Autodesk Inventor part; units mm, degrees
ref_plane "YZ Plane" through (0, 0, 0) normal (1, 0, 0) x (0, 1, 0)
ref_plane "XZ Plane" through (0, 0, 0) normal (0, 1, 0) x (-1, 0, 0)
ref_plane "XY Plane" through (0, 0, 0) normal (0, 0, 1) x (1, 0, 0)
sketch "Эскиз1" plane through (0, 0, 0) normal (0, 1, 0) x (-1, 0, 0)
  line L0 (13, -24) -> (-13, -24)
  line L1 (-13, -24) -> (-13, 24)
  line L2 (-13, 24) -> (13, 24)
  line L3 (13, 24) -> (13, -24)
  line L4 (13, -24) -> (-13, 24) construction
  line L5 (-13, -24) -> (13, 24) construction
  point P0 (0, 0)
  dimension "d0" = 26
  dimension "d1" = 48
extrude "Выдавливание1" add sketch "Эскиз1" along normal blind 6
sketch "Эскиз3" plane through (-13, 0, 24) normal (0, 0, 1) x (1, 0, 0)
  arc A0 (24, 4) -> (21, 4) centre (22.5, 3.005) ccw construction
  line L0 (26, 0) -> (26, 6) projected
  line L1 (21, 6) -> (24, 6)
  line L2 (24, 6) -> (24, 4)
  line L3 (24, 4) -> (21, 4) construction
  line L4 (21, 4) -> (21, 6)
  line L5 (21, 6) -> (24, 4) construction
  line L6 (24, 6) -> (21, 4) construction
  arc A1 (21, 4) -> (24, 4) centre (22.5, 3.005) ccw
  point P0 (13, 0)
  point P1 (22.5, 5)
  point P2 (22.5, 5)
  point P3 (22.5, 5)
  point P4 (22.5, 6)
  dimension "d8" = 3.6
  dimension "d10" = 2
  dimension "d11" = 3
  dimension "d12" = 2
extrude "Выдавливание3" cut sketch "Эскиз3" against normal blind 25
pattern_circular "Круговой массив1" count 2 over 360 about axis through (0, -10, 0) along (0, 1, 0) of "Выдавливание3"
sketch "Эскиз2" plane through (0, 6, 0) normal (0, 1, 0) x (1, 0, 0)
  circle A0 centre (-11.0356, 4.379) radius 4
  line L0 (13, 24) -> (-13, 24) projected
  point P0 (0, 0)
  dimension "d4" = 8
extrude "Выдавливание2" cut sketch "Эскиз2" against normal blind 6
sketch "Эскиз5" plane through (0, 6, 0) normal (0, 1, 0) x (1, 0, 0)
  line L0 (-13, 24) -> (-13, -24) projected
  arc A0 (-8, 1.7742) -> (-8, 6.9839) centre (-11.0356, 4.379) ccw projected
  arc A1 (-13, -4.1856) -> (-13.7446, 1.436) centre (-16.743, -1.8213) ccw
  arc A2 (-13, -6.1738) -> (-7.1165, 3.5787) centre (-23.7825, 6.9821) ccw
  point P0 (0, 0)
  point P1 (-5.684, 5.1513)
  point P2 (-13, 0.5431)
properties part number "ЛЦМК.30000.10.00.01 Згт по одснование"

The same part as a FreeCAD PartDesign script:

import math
import FreeCAD as App
import Part
import Sketcher
from FreeCAD import Vector


def add_polygon(sketch, points):
    """Adds a closed chain of lines whose ends are joined by coincident constraints."""
    first, n = sketch.GeometryCount, len(points)
    for a, b in zip(points, points[1:] + points[:1]):
        sketch.addGeometry(Part.LineSegment(App.Vector(*a, 0), App.Vector(*b, 0)), False)
    for i in range(n):
        sketch.addConstraint(Sketcher.Constraint("Coincident", first + i, 2, first + (i + 1) % n, 1))

doc = App.newDocument("Part")
body = doc.addObject("PartDesign::Body", "Body")

# Sketch on XZ plane
sketch1 = doc.addObject("Sketcher::SketchObject", "Sketch")
body.addObject(sketch1)
sketch1.AttachmentSupport = (doc.XZ_Plane, [""])
sketch1.MapMode = "FlatFace"
add_polygon(sketch1, [(13, -24), (-13, -24), (-13, 24), (13, 24)])  # lines 0-3
sketch1.addConstraint(Sketcher.Constraint("Horizontal", 0))
sketch1.addConstraint(Sketcher.Constraint("Vertical", 1))
sketch1.addConstraint(Sketcher.Constraint("Horizontal", 2))
sketch1.addConstraint(Sketcher.Constraint("Vertical", 3))
sketch1.addConstraint(Sketcher.Constraint("Symmetric", 0, 2, 2, 2, -1, 1))
sketch1.addConstraint(Sketcher.Constraint("DistanceX", 0, 2, 0, 1, 26.0))
sketch1.addConstraint(Sketcher.Constraint("DistanceY", 1, 1, 1, 2, 48.0))
pad1 = doc.addObject("PartDesign::Pad", "Pad")
body.addObject(pad1)
pad1.Profile = sketch1
pad1.Length = 6
pad1.Reversed = True

# Sketch on XY plane
sketch2 = doc.addObject("Sketcher::SketchObject", "Sketch001")
body.addObject(sketch2)
sketch2.AttachmentSupport = (doc.XY_Plane, [""])
sketch2.MapMode = "FlatFace"
sketch2.AttachmentOffset = App.Placement(Vector(0, 0, 24), App.Rotation())
sketch2.addGeometry(Part.LineSegment(Vector(11, 6, 0), Vector(8, 6, 0)), False)
sketch2.addGeometry(Part.LineSegment(Vector(8, 6, 0), Vector(8, 4, 0)), False)
sketch2.addGeometry(Part.ArcOfCircle(Part.Circle(Vector(9.5, 3, 0), Vector(0, 0, 1), 1.8), math.radians(146), math.radians(394)), False)
sketch2.addGeometry(Part.LineSegment(Vector(11, 4, 0), Vector(11, 6, 0)), False)
sketch2.addConstraint(Sketcher.Constraint("Coincident", 0, 2, 1, 1))
sketch2.addConstraint(Sketcher.Constraint("Coincident", 1, 2, 2, 1))
sketch2.addConstraint(Sketcher.Constraint("Coincident", 2, 2, 3, 1))
sketch2.addConstraint(Sketcher.Constraint("Coincident", 3, 2, 0, 1))
sketch2.addConstraint(Sketcher.Constraint("Horizontal", 0))
sketch2.addConstraint(Sketcher.Constraint("Vertical", 1))
sketch2.addConstraint(Sketcher.Constraint("Vertical", 3))
sketch2.addConstraint(Sketcher.Constraint("Horizontal", 1, 2, 2, 2))
sketch2.addConstraint(Sketcher.Constraint("Radius", 2, 1.8))
sketch2.addConstraint(Sketcher.Constraint("DistanceX", 0, 2, 0, 1, 3.0))
sketch2.addConstraint(Sketcher.Constraint("DistanceY", 1, 2, 1, 1, 2.0))
sketch2.addConstraint(Sketcher.Constraint("DistanceX", -1, 1, 0, 2, 8.0))
sketch2.addConstraint(Sketcher.Constraint("DistanceY", -1, 1, 0, 2, 6.0))
pocket1 = doc.addObject("PartDesign::Pocket", "Pocket")
body.addObject(pocket1)
pocket1.Profile = sketch2
pocket1.Length = 25
doc.recompute()

polarpattern = doc.addObject("PartDesign::PolarPattern", "PolarPattern")
body.addObject(polarpattern)
polarpattern.Originals = [pocket1]
polarpattern.Axis = (doc.Y_Axis, [""])
polarpattern.Angle = 360
polarpattern.Occurrences = 2
body.Tip = polarpattern

# Sketch on XZ plane
sketch3 = doc.addObject("Sketcher::SketchObject", "Sketch002")
body.addObject(sketch3)
sketch3.AttachmentSupport = (doc.XZ_Plane, [""])
sketch3.MapMode = "FlatFace"
sketch3.AttachmentOffset = App.Placement(Vector(0, 0, -6), App.Rotation())
sketch3.addGeometry(Part.Circle(Vector(-11, -4.4, 0), Vector(0, 0, 1), 4), False)
sketch3.addConstraint(Sketcher.Constraint("Diameter", 0, 8.0))
sketch3.addConstraint(Sketcher.Constraint("DistanceY", 0, 3, -1, 1, 4.379))
sketch3.addConstraint(Sketcher.Constraint("DistanceX", 0, 3, -1, 1, 11.0356))
pocket2 = doc.addObject("PartDesign::Pocket", "Pocket001")
body.addObject(pocket2)
pocket2.Profile = sketch3
pocket2.Length = 6
pocket2.Reversed = True

doc.recompute()
